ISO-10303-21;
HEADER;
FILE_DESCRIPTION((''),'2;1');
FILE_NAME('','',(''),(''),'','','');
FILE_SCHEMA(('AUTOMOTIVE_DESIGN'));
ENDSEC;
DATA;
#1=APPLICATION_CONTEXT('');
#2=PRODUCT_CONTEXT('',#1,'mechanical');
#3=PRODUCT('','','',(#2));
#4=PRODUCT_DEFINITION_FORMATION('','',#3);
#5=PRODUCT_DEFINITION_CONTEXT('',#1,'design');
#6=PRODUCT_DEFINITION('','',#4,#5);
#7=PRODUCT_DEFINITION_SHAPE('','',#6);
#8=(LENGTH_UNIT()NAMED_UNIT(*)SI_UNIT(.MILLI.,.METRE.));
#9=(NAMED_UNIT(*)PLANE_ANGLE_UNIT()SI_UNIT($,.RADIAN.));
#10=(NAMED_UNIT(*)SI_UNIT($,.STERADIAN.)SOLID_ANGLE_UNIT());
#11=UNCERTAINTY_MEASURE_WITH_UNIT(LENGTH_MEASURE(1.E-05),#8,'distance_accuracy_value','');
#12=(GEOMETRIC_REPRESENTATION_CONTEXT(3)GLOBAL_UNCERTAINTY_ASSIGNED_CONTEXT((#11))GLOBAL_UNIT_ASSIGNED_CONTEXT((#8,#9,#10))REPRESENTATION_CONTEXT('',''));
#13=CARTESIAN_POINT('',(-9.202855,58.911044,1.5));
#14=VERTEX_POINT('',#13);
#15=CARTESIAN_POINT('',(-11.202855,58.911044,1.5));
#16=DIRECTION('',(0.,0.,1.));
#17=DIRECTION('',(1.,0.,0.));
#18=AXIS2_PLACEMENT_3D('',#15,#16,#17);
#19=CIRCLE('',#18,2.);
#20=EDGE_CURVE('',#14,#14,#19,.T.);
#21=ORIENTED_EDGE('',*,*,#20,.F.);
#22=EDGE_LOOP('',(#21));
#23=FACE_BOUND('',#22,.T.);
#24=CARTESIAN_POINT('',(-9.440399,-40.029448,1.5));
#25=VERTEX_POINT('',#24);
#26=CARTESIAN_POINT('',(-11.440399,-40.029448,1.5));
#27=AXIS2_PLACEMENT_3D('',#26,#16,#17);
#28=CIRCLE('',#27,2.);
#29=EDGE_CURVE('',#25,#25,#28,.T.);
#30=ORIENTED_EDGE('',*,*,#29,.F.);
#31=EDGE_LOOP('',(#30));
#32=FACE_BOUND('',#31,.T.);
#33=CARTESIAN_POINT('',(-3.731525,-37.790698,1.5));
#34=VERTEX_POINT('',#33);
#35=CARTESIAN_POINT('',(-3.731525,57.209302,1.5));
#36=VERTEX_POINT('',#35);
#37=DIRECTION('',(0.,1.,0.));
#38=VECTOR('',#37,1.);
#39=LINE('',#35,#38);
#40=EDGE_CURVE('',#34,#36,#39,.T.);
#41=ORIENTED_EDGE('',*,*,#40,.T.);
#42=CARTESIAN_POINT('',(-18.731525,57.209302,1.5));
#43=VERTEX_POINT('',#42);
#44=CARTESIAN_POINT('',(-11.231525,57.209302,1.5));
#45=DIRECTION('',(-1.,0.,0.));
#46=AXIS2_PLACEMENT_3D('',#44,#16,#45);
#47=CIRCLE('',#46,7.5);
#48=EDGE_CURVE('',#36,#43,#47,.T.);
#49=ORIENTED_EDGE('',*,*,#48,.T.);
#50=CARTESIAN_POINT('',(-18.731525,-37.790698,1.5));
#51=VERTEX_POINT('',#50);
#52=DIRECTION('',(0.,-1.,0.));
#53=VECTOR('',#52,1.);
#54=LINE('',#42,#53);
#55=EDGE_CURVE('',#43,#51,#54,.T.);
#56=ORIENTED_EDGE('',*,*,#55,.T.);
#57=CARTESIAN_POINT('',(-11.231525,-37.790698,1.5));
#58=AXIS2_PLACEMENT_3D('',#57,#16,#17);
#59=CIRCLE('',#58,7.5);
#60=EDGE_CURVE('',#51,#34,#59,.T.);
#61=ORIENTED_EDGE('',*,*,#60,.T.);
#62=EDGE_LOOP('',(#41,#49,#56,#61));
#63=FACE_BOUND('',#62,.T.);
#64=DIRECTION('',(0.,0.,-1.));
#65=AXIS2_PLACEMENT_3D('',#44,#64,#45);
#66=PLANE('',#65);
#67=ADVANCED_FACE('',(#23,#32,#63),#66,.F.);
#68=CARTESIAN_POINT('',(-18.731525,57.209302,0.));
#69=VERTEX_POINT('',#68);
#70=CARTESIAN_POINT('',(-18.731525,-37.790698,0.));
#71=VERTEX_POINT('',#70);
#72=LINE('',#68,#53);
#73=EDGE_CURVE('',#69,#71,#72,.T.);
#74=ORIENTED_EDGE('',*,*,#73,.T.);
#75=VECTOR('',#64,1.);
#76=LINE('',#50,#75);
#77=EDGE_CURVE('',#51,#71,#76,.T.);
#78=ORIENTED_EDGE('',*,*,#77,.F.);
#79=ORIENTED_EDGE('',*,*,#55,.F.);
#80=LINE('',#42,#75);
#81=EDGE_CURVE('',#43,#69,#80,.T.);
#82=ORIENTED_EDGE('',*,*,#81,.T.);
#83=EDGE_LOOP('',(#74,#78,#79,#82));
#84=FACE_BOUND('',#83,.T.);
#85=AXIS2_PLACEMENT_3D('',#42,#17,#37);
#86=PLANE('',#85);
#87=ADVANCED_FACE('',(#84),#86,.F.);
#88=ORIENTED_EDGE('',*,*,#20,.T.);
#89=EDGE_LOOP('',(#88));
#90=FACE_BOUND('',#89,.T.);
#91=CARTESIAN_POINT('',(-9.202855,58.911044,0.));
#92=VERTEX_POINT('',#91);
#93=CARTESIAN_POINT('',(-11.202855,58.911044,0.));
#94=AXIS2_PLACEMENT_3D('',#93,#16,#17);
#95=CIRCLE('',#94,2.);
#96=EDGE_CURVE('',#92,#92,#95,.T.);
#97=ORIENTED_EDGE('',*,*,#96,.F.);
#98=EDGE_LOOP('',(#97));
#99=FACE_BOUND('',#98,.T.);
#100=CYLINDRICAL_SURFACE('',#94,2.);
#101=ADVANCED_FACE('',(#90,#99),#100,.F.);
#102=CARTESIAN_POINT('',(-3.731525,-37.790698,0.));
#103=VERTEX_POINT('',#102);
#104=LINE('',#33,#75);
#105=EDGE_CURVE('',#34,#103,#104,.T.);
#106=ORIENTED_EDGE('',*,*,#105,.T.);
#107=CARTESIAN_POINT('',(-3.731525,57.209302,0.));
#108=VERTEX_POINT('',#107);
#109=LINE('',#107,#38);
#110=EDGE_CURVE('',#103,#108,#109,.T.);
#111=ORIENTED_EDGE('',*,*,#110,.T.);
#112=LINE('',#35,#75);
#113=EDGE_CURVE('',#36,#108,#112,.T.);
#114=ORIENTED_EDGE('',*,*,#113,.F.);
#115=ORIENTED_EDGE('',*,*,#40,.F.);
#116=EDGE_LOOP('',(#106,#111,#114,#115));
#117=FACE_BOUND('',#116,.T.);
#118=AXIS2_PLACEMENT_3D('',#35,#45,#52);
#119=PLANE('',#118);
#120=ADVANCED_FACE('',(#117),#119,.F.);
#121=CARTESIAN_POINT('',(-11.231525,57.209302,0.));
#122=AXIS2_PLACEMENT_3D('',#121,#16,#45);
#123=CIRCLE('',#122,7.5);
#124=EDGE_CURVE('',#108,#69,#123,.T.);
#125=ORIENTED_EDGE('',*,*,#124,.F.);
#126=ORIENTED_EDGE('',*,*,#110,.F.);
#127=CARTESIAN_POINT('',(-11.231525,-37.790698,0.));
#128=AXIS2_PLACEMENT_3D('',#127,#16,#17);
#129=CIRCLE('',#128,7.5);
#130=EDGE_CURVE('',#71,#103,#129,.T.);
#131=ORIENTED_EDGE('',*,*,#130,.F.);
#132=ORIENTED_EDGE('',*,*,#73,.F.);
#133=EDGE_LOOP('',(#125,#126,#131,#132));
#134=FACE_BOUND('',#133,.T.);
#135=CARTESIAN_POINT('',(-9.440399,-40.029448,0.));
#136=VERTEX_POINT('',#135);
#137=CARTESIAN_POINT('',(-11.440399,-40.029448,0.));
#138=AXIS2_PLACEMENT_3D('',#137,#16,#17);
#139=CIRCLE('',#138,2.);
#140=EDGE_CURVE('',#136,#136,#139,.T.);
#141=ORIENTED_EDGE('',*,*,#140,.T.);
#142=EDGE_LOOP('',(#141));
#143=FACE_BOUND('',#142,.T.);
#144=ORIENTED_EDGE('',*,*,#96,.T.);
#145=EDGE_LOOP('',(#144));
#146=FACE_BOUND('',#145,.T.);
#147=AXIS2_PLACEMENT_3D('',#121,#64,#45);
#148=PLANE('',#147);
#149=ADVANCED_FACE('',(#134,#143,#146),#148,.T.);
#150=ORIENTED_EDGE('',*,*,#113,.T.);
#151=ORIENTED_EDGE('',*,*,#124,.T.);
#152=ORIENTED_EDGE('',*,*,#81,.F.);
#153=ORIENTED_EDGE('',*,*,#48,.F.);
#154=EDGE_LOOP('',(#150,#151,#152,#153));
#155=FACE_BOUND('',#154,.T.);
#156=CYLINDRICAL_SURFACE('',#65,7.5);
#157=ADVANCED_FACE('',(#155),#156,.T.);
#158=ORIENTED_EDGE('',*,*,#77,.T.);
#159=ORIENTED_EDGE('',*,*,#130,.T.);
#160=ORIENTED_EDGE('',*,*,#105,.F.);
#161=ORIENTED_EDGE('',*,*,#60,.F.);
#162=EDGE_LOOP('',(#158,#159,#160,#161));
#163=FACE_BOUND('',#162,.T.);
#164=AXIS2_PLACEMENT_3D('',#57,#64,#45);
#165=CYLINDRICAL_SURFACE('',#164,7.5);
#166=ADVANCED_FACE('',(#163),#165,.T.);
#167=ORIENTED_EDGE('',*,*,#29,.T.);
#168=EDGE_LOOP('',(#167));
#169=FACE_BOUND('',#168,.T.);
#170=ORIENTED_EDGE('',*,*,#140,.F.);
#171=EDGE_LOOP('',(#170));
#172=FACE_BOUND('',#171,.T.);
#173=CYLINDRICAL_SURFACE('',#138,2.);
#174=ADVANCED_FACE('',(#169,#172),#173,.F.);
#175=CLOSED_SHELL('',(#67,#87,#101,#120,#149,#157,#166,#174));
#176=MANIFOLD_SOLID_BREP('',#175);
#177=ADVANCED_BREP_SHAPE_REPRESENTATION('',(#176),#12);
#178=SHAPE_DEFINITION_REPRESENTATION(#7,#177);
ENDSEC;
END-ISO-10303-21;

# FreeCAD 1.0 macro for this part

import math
import FreeCAD as App
import Part
import Sketcher
from FreeCAD import Vector
Q = App.Units.Quantity

doc = App.newDocument("Part")
body = doc.addObject("PartDesign::Body", "Body")

# Sketch on XY plane
sketch1 = body.newObject("Sketcher::SketchObject", "Sketch")
sketch1.AttachmentSupport = (doc.getObject("XY_Plane"), [""])
sketch1.MapMode = "FlatFace"
sketch1.addGeometry(Part.LineSegment(Vector(-19, 57, 0), Vector(-19, -38, 0)), False)
sketch1.addGeometry(Part.ArcOfCircle(Part.Circle(Vector(-11, -38, 0), Vector(0, 0, 1), 8), math.radians(180), math.radians(360)), False)
sketch1.addGeometry(Part.LineSegment(Vector(-4, -38, 0), Vector(-4, 57, 0)), False)
sketch1.addGeometry(Part.ArcOfCircle(Part.Circle(Vector(-11, 57, 0), Vector(0, 0, 1), 8), math.radians(0), math.radians(180)), False)
sketch1.addConstraint(Sketcher.Constraint("Tangent", 0, 2, 1, 1))
sketch1.addConstraint(Sketcher.Constraint("Tangent", 1, 2, 2, 1))
sketch1.addConstraint(Sketcher.Constraint("Tangent", 2, 2, 3, 1))
sketch1.addConstraint(Sketcher.Constraint("Tangent", 3, 2, 0, 1))
sketch1.addConstraint(Sketcher.Constraint("Vertical", 0))
sketch1.addConstraint(Sketcher.Constraint("Vertical", 2))
sketch1.addConstraint(Sketcher.Constraint("Radius", 1, Q("7.5 mm")))
sketch1.addConstraint(Sketcher.Constraint("DistanceY", 0, 2, 0, 1, Q("95 mm")))
sketch1.addConstraint(Sketcher.Constraint("DistanceX", 1, 3, -1, 1, Q("11.231525 mm")))
sketch1.addConstraint(Sketcher.Constraint("DistanceY", 1, 3, -1, 1, Q("37.790698 mm")))
pad1 = body.newObject("PartDesign::Pad", "Pad")
pad1.Profile = sketch1
pad1.Length = 1.5

# Sketch on XY plane
sketch2 = body.newObject("Sketcher::SketchObject", "Sketch001")
sketch2.AttachmentSupport = (doc.getObject("XY_Plane"), [""])
sketch2.MapMode = "FlatFace"
sketch2.AttachmentOffset = App.Placement(Vector(0, 0, 1.5), App.Rotation())
sketch2.addGeometry(Part.Circle(Vector(-11.2, 58.9, 0), Vector(0, 0, 1), 2), False)
sketch2.addGeometry(Part.Circle(Vector(-11.4, -40, 0), Vector(0, 0, 1), 2), False)
sketch2.addConstraint(Sketcher.Constraint("Equal", 0, 1))
sketch2.addConstraint(Sketcher.Constraint("Diameter", 0, Q("4 mm")))
sketch2.addConstraint(Sketcher.Constraint("DistanceX", 1, 3, -1, 1, Q("11.440399 mm")))
sketch2.addConstraint(Sketcher.Constraint("DistanceX", 0, 3, -1, 1, Q("11.202855 mm")))
sketch2.addConstraint(Sketcher.Constraint("DistanceY", -1, 1, 0, 3, Q("58.911044 mm")))
sketch2.addConstraint(Sketcher.Constraint("DistanceY", 1, 3, -1, 1, Q("40.029448 mm")))
pocket1 = body.newObject("PartDesign::Pocket", "Pocket")
pocket1.Profile = sketch2
pocket1.Length = 1.5

doc.recompute()
